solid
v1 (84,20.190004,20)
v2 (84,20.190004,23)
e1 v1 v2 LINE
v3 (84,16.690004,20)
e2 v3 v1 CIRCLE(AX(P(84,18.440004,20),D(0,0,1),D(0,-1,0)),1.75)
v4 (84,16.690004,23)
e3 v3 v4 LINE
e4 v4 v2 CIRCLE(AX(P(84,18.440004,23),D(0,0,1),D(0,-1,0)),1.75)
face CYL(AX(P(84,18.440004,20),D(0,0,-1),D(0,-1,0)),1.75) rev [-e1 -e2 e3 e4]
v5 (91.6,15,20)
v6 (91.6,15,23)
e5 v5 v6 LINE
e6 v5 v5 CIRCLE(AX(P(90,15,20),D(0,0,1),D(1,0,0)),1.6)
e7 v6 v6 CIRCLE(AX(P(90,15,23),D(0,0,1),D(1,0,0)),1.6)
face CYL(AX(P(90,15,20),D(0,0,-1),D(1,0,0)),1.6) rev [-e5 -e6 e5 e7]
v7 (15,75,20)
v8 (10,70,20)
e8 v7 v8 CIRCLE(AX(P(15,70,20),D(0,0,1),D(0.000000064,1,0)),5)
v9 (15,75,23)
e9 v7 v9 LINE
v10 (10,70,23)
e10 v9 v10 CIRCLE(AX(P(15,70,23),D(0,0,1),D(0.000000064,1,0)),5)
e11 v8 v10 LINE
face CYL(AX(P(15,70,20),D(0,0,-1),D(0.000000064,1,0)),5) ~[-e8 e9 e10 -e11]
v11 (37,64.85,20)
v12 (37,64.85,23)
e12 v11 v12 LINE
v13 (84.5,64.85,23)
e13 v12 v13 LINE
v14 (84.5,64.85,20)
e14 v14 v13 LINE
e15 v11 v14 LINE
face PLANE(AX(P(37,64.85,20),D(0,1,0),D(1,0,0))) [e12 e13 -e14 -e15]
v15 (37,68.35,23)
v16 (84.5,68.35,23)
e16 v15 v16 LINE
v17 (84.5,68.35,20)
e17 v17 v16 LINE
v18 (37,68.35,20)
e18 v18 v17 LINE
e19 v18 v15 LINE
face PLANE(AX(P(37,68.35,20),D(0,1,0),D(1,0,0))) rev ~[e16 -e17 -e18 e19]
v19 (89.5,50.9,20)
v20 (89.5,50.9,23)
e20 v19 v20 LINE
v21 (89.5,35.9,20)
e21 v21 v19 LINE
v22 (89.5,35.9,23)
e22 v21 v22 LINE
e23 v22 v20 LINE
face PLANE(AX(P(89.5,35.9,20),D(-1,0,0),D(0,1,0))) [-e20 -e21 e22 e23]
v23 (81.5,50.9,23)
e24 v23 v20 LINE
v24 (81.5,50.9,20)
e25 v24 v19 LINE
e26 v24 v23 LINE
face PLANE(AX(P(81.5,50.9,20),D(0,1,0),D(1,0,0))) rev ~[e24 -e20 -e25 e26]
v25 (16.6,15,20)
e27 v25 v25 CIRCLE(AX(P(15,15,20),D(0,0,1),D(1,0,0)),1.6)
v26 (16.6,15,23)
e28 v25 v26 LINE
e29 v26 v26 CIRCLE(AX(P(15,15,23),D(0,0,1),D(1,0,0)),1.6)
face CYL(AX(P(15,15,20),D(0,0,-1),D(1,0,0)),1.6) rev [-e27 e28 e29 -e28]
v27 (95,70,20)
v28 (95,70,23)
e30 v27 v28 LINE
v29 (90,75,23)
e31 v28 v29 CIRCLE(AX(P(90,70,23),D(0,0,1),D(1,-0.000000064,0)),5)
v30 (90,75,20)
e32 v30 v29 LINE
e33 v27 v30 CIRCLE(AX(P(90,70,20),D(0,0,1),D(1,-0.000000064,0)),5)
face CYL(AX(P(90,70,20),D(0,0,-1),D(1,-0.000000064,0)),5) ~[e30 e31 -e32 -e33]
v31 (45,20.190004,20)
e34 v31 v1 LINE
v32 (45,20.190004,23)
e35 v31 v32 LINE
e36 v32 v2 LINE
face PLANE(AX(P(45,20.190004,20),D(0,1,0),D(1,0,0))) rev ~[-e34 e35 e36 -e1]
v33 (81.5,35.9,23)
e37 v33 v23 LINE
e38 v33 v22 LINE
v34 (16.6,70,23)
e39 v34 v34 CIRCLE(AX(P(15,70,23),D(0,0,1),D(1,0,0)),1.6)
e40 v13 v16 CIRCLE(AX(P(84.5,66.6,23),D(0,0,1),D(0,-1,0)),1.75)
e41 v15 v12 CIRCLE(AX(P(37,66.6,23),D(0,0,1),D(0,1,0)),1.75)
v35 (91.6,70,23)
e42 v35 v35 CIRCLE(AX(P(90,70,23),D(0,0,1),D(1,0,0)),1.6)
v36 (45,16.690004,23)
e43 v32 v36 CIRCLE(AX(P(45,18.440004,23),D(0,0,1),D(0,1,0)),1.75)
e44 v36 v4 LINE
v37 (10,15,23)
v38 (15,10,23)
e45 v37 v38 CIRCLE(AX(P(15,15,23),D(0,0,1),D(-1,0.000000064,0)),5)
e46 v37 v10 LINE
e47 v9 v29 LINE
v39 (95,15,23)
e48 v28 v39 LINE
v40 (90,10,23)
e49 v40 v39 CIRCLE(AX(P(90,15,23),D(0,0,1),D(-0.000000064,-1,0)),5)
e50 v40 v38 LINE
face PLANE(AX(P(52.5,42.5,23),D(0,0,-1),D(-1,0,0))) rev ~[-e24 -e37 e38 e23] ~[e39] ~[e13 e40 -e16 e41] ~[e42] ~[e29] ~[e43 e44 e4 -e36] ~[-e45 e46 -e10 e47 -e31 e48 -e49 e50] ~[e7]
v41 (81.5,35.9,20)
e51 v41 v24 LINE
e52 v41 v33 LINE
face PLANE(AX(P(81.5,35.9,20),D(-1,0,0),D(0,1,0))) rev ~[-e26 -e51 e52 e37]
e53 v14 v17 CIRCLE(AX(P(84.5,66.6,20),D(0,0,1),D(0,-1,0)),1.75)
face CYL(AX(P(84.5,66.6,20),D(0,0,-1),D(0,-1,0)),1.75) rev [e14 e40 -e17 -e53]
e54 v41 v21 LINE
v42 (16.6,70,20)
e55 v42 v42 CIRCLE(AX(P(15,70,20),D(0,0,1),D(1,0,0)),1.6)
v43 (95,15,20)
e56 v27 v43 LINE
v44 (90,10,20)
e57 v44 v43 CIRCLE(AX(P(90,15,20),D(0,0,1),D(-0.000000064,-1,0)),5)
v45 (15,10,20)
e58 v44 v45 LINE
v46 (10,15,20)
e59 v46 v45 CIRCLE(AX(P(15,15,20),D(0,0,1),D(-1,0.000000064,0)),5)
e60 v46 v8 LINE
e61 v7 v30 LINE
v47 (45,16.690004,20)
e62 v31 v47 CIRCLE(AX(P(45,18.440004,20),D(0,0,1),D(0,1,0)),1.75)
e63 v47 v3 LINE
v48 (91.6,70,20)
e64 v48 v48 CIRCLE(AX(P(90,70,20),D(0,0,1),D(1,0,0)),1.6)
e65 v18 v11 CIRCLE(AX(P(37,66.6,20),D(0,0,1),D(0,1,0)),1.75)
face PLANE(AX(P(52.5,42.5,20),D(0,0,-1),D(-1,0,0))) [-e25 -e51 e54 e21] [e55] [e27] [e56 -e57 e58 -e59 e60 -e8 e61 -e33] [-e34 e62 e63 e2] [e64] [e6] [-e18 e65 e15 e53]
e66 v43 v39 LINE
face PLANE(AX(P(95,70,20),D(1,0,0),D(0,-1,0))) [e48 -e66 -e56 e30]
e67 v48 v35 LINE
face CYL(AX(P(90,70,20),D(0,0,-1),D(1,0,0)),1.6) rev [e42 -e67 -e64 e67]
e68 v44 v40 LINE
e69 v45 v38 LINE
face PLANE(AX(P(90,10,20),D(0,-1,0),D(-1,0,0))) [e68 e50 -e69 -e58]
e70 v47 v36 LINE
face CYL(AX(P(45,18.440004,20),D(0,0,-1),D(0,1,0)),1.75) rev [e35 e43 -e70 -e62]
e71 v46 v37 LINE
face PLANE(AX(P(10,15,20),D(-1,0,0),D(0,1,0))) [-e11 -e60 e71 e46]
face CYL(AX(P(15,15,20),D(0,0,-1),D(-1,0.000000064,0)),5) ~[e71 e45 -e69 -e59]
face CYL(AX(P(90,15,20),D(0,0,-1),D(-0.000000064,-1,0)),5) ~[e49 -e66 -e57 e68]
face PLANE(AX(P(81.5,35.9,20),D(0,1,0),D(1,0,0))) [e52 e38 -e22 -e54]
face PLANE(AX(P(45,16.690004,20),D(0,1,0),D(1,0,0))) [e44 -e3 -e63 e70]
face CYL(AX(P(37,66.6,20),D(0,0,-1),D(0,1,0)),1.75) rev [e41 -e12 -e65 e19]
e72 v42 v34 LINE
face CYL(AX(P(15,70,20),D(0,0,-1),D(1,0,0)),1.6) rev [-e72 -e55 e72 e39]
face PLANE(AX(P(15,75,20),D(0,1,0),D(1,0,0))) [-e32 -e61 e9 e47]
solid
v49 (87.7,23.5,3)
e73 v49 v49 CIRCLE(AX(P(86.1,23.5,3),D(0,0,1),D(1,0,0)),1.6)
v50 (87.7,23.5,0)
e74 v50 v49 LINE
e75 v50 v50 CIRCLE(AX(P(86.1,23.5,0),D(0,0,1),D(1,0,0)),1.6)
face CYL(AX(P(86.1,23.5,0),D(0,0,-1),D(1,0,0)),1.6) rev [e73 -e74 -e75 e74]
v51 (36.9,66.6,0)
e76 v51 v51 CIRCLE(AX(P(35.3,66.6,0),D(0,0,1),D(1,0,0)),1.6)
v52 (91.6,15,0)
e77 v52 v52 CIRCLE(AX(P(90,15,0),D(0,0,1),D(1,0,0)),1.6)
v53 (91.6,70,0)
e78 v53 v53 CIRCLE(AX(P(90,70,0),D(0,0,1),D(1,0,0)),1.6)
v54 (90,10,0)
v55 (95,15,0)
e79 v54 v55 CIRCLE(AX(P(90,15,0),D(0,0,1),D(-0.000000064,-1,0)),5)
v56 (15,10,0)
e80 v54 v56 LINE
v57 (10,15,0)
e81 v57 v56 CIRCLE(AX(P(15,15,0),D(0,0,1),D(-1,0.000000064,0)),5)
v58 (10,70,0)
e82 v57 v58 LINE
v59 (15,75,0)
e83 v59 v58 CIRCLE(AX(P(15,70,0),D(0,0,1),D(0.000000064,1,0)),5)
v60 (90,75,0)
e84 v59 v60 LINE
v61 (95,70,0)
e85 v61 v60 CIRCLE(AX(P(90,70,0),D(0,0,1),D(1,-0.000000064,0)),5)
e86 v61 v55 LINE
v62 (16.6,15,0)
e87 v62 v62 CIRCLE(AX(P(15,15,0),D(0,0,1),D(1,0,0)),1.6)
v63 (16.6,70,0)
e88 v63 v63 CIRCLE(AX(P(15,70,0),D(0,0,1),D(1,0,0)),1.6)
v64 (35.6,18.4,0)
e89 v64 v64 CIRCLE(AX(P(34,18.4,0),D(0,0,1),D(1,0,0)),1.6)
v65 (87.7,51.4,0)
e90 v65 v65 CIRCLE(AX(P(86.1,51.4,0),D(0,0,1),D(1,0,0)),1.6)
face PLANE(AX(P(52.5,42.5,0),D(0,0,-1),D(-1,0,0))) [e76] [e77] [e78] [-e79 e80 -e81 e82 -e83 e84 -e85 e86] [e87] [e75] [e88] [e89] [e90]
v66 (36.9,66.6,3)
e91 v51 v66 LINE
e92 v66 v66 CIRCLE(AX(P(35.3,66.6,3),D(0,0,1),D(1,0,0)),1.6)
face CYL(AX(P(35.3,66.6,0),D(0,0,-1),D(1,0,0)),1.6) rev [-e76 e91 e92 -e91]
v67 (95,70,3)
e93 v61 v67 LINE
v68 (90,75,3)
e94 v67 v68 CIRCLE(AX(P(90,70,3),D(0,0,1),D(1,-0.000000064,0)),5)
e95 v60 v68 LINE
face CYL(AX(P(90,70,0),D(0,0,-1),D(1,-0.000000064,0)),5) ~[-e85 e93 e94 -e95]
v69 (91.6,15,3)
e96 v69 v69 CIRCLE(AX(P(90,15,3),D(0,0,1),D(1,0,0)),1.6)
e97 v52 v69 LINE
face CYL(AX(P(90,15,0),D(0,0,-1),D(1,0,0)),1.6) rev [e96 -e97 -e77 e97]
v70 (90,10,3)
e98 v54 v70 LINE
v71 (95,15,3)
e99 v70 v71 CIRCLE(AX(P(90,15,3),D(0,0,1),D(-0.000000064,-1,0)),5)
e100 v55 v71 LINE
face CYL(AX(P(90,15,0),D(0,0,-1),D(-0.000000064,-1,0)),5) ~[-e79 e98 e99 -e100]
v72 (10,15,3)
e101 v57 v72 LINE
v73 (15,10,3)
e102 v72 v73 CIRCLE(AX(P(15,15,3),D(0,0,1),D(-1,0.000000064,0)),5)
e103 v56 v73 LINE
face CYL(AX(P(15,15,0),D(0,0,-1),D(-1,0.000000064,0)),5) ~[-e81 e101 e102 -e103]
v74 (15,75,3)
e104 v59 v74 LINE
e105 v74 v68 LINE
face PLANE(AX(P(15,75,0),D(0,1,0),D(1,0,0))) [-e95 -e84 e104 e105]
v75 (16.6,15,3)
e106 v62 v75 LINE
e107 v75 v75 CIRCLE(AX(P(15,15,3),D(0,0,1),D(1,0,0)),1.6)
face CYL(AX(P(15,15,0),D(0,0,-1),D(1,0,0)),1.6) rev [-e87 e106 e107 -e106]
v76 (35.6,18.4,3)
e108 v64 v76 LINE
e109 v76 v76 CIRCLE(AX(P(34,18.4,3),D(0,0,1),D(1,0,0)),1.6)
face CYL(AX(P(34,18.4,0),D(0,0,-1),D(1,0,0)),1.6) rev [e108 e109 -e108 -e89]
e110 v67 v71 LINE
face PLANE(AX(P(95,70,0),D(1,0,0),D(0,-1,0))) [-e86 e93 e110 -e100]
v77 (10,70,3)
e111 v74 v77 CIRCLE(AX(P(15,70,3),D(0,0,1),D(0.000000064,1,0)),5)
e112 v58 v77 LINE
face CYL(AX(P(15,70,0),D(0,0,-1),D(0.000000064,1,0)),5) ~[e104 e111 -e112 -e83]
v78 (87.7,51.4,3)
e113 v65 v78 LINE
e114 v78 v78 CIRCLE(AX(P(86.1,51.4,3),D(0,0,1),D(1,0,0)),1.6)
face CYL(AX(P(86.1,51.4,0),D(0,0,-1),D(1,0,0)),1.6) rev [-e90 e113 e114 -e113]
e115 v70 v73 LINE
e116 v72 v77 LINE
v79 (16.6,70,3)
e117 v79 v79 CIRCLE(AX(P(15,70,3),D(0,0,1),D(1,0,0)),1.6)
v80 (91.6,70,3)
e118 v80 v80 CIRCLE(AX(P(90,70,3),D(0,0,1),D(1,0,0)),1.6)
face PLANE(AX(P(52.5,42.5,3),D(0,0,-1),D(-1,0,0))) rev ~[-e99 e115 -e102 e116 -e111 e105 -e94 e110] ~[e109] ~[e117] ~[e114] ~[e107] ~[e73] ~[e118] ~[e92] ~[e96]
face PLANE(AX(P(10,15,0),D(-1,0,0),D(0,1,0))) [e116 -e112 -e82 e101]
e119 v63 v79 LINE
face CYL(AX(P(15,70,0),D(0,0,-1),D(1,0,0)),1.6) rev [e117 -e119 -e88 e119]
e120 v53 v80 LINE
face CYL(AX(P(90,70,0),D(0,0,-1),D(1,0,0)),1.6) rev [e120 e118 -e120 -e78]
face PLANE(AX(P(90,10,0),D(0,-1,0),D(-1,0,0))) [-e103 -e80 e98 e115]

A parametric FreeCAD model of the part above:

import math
import FreeCAD as App
import Part
import Sketcher
from FreeCAD import Vector
Q = App.Units.Quantity


def add_polygon(sketch, points):
    """Adds a closed chain of lines whose ends are joined by coincident constraints."""
    first, n = sketch.GeometryCount, len(points)
    for a, b in zip(points, points[1:] + points[:1]):
        sketch.addGeometry(Part.LineSegment(App.Vector(*a, 0), App.Vector(*b, 0)), False)
    for i in range(n):
        sketch.addConstraint(Sketcher.Constraint("Coincident", first + i, 2, first + (i + 1) % n, 1))

doc = App.newDocument("Part")
params = doc.addObject("Spreadsheet::Sheet", "Params")
for row, (alias, value) in enumerate([
    ("sketch1_radius", "5 mm"),
    ("sketch1_diameter", "3.2 mm"),
    ("sketch1_width", "75 mm"),
    ("sketch1_height", "55 mm"),
    ("pad1_length", "3 mm"),
    ("sketch2_radius", "5 mm"),
    ("sketch2_diameter", "3.2 mm"),
    ("sketch2_width", "75 mm"),
    ("sketch2_width2", "39 mm"),
    ("sketch2_width3", "8 mm"),
    ("pad2_length", "3 mm"),
], start=1):
    params.set(f"A{row}", alias)
    params.set(f"B{row}", "=" + value)
    params.setAlias(f"B{row}", alias)

body = doc.addObject("PartDesign::Body", "Body")

sketch1 = body.newObject("Sketcher::SketchObject", "Sketch")
sketch1.AttachmentSupport = (doc.getObject("XY_Plane"), [""])
sketch1.MapMode = "FlatFace"
sketch1.addGeometry(Part.LineSegment(Vector(90, 75, 0), Vector(15, 75, 0)), False)
sketch1.addGeometry(Part.ArcOfCircle(Part.Circle(Vector(15, 70, 0), Vector(0, 0, 1), 5), math.radians(90), math.radians(180)), False)
sketch1.addGeometry(Part.LineSegment(Vector(10, 70, 0), Vector(10, 15, 0)), False)
sketch1.addGeometry(Part.ArcOfCircle(Part.Circle(Vector(15, 15, 0), Vector(0, 0, 1), 5), math.radians(180), math.radians(270)), False)
sketch1.addGeometry(Part.LineSegment(Vector(15, 10, 0), Vector(90, 10, 0)), False)
sketch1.addGeometry(Part.ArcOfCircle(Part.Circle(Vector(90, 15, 0), Vector(0, 0, 1), 5), math.radians(-90), math.radians(0)), False)
sketch1.addGeometry(Part.LineSegment(Vector(95, 15, 0), Vector(95, 70, 0)), False)
sketch1.addGeometry(Part.ArcOfCircle(Part.Circle(Vector(90, 70, 0), Vector(0, 0, 1), 5), math.radians(0), math.radians(90)), False)
sketch1.addGeometry(Part.Circle(Vector(90, 15, 0), Vector(0, 0, 1), 1.6), False)
sketch1.addGeometry(Part.Circle(Vector(86.1, 23.5, 0), Vector(0, 0, 1), 1.6), False)
sketch1.addGeometry(Part.Circle(Vector(34, 18.4, 0), Vector(0, 0, 1), 1.6), False)
sketch1.addGeometry(Part.Circle(Vector(15, 15, 0), Vector(0, 0, 1), 1.6), False)
sketch1.addGeometry(Part.Circle(Vector(86.1, 51.4, 0), Vector(0, 0, 1), 1.6), False)
sketch1.addGeometry(Part.Circle(Vector(90, 70, 0), Vector(0, 0, 1), 1.6), False)
sketch1.addGeometry(Part.Circle(Vector(35.3, 66.6, 0), Vector(0, 0, 1), 1.6), False)
sketch1.addGeometry(Part.Circle(Vector(15, 70, 0), Vector(0, 0, 1), 1.6), False)
sketch1.addConstraint(Sketcher.Constraint("Tangent", 0, 2, 1, 1))
sketch1.addConstraint(Sketcher.Constraint("Tangent", 1, 2, 2, 1))
sketch1.addConstraint(Sketcher.Constraint("Tangent", 2, 2, 3, 1))
sketch1.addConstraint(Sketcher.Constraint("Tangent", 3, 2, 4, 1))
sketch1.addConstraint(Sketcher.Constraint("Tangent", 4, 2, 5, 1))
sketch1.addConstraint(Sketcher.Constraint("Tangent", 5, 2, 6, 1))
sketch1.addConstraint(Sketcher.Constraint("Tangent", 6, 2, 7, 1))
sketch1.addConstraint(Sketcher.Constraint("Tangent", 7, 2, 0, 1))
sketch1.addConstraint(Sketcher.Constraint("Horizontal", 0))
sketch1.addConstraint(Sketcher.Constraint("Vertical", 2))
sketch1.addConstraint(Sketcher.Constraint("Horizontal", 4))
sketch1.addConstraint(Sketcher.Constraint("Vertical", 6))
sketch1.addConstraint(Sketcher.Constraint("Coincident", 8, 3, 5, 3))
sketch1.addConstraint(Sketcher.Constraint("Coincident", 11, 3, 3, 3))
sketch1.addConstraint(Sketcher.Constraint("Coincident", 13, 3, 7, 3))
sketch1.addConstraint(Sketcher.Constraint("Coincident", 15, 3, 1, 3))
sketch1.addConstraint(Sketcher.Constraint("Equal", 1, 3))
sketch1.addConstraint(Sketcher.Constraint("Equal", 3, 5))
sketch1.addConstraint(Sketcher.Constraint("Equal", 5, 7))
sketch1.addConstraint(Sketcher.Constraint("Equal", 8, 9))
sketch1.addConstraint(Sketcher.Constraint("Equal", 9, 10))
sketch1.addConstraint(Sketcher.Constraint("Equal", 10, 11))
sketch1.addConstraint(Sketcher.Constraint("Equal", 11, 12))
sketch1.addConstraint(Sketcher.Constraint("Equal", 12, 13))
sketch1.addConstraint(Sketcher.Constraint("Equal", 13, 14))
sketch1.addConstraint(Sketcher.Constraint("Equal", 14, 15))
sketch1.addConstraint(Sketcher.Constraint("Vertical", 9, 3, 12, 3))
sketch1.addConstraint(Sketcher.Constraint("Radius", 1, Q("5 mm")))
sketch1.addConstraint(Sketcher.Constraint("Diameter", 8, Q("3.2 mm")))
sketch1.addConstraint(Sketcher.Constraint("DistanceX", 0, 2, 0, 1, Q("75 mm")))
sketch1.addConstraint(Sketcher.Constraint("DistanceY", 2, 2, 2, 1, Q("55 mm")))
sketch1.addConstraint(Sketcher.Constraint("DistanceX", -1, 1, 1, 3, Q("15 mm")))
sketch1.addConstraint(Sketcher.Constraint("DistanceY", -1, 1, 1, 3, Q("70 mm")))
sketch1.addConstraint(Sketcher.Constraint("DistanceX", -1, 1, 10, 3, Q("34 mm")))
sketch1.addConstraint(Sketcher.Constraint("DistanceY", 10, 3, 12, 3, Q("33 mm")))
sketch1.addConstraint(Sketcher.Constraint("DistanceX", -1, 1, 9, 3, Q("86.1 mm")))
sketch1.addConstraint(Sketcher.Constraint("DistanceY", -1, 1, 9, 3, Q("23.5 mm")))
sketch1.addConstraint(Sketcher.Constraint("DistanceY", -1, 1, 10, 3, Q("18.4 mm")))
sketch1.addConstraint(Sketcher.Constraint("DistanceX", -1, 1, 14, 3, Q("35.3 mm")))
sketch1.addConstraint(Sketcher.Constraint("DistanceY", -1, 1, 14, 3, Q("66.6 mm")))
sketch1.setExpression("Constraints[27]", "Params.sketch1_radius")
sketch1.setExpression("Constraints[28]", "Params.sketch1_diameter")
sketch1.setExpression("Constraints[29]", "Params.sketch1_width")
sketch1.setExpression("Constraints[30]", "Params.sketch1_height")
pad1 = body.newObject("PartDesign::Pad", "Pad")
pad1.Profile = sketch1
pad1.setExpression("Length", "Params.pad1_length")
body2 = doc.addObject("PartDesign::Body", "Body001")

sketch2 = body2.newObject("Sketcher::SketchObject", "Sketch001")
sketch2.AttachmentSupport = (doc.getObject("XY_Plane001"), [""])
sketch2.MapMode = "FlatFace"
sketch2.AttachmentOffset = App.Placement(Vector(0, 0, 20), App.Rotation())
sketch2.addGeometry(Part.LineSegment(Vector(90, 75, 0), Vector(15, 75, 0)), False)
sketch2.addGeometry(Part.ArcOfCircle(Part.Circle(Vector(15, 70, 0), Vector(0, 0, 1), 5), math.radians(90), math.radians(180)), False)
sketch2.addGeometry(Part.LineSegment(Vector(10, 70, 0), Vector(10, 15, 0)), False)
sketch2.addGeometry(Part.ArcOfCircle(Part.Circle(Vector(15, 15, 0), Vector(0, 0, 1), 5), math.radians(180), math.radians(270)), False)
sketch2.addGeometry(Part.LineSegment(Vector(15, 10, 0), Vector(90, 10, 0)), False)
sketch2.addGeometry(Part.ArcOfCircle(Part.Circle(Vector(90, 15, 0), Vector(0, 0, 1), 5), math.radians(-90), math.radians(0)), False)
sketch2.addGeometry(Part.LineSegment(Vector(95, 15, 0), Vector(95, 70, 0)), False)
sketch2.addGeometry(Part.ArcOfCircle(Part.Circle(Vector(90, 70, 0), Vector(0, 0, 1), 5), math.radians(0), math.radians(90)), False)
sketch2.addGeometry(Part.Circle(Vector(90, 15, 0), Vector(0, 0, 1), 1.6), False)
sketch2.addGeometry(Part.LineSegment(Vector(45, 20.2, 0), Vector(84, 20.2, 0)), False)
sketch2.addGeometry(Part.ArcOfCircle(Part.Circle(Vector(84, 18.4, 0), Vector(0, 0, 1), 1.8), math.radians(-90), math.radians(90)), False)
sketch2.addGeometry(Part.LineSegment(Vector(84, 16.7, 0), Vector(45, 16.7, 0)), False)
sketch2.addGeometry(Part.ArcOfCircle(Part.Circle(Vector(45, 18.4, 0), Vector(0, 0, 1), 1.8), math.radians(90), math.radians(270)), False)
sketch2.addGeometry(Part.Circle(Vector(15, 15, 0), Vector(0, 0, 1), 1.6), False)
add_polygon(sketch2, [(81.5, 35.9), (81.5, 50.9), (89.5, 50.9), (89.5, 35.9)])
sketch2.addGeometry(Part.Circle(Vector(90, 70, 0), Vector(0, 0, 1), 1.6), False)
sketch2.addGeometry(Part.LineSegment(Vector(37, 68.3, 0), Vector(84.5, 68.3, 0)), False)
sketch2.addGeometry(Part.ArcOfCircle(Part.Circle(Vector(84.5, 66.6, 0), Vector(0, 0, 1), 1.8), math.radians(-90), math.radians(90)), False)
sketch2.addGeometry(Part.LineSegment(Vector(84.5, 64.8, 0), Vector(37, 64.8, 0)), False)
sketch2.addGeometry(Part.ArcOfCircle(Part.Circle(Vector(37, 66.6, 0), Vector(0, 0, 1), 1.8), math.radians(90), math.radians(270)), False)
sketch2.addGeometry(Part.Circle(Vector(15, 70, 0), Vector(0, 0, 1), 1.6), False)
sketch2.addConstraint(Sketcher.Constraint("Tangent", 0, 2, 1, 1))
sketch2.addConstraint(Sketcher.Constraint("Tangent", 1, 2, 2, 1))
sketch2.addConstraint(Sketcher.Constraint("Tangent", 2, 2, 3, 1))
sketch2.addConstraint(Sketcher.Constraint("Tangent", 3, 2, 4, 1))
sketch2.addConstraint(Sketcher.Constraint("Tangent", 4, 2, 5, 1))
sketch2.addConstraint(Sketcher.Constraint("Tangent", 5, 2, 6, 1))
sketch2.addConstraint(Sketcher.Constraint("Tangent", 6, 2, 7, 1))
sketch2.addConstraint(Sketcher.Constraint("Tangent", 7, 2, 0, 1))
sketch2.addConstraint(Sketcher.Constraint("Tangent", 9, 2, 10, 2))
sketch2.addConstraint(Sketcher.Constraint("Tangent", 10, 1, 11, 1))
sketch2.addConstraint(Sketcher.Constraint("Tangent", 11, 2, 12, 2))
sketch2.addConstraint(Sketcher.Constraint("Tangent", 12, 1, 9, 1))
sketch2.addConstraint(Sketcher.Constraint("Tangent", 19, 2, 20, 2))
sketch2.addConstraint(Sketcher.Constraint("Tangent", 20, 1, 21, 1))
sketch2.addConstraint(Sketcher.Constraint("Tangent", 21, 2, 22, 2))
sketch2.addConstraint(Sketcher.Constraint("Tangent", 22, 1, 19, 1))
sketch2.addConstraint(Sketcher.Constraint("Horizontal", 0))
sketch2.addConstraint(Sketcher.Constraint("Vertical", 2))
sketch2.addConstraint(Sketcher.Constraint("Horizontal", 4))
sketch2.addConstraint(Sketcher.Constraint("Vertical", 6))
sketch2.addConstraint(Sketcher.Constraint("Horizontal", 9))
sketch2.addConstraint(Sketcher.Constraint("Horizontal", 11))
sketch2.addConstraint(Sketcher.Constraint("Vertical", 14))
sketch2.addConstraint(Sketcher.Constraint("Horizontal", 15))
sketch2.addConstraint(Sketcher.Constraint("Vertical", 16))
sketch2.addConstraint(Sketcher.Constraint("Horizontal", 17))
sketch2.addConstraint(Sketcher.Constraint("Horizontal", 19))
sketch2.addConstraint(Sketcher.Constraint("Horizontal", 21))
sketch2.addConstraint(Sketcher.Constraint("Coincident", 8, 3, 5, 3))
sketch2.addConstraint(Sketcher.Constraint("Coincident", 13, 3, 3, 3))
sketch2.addConstraint(Sketcher.Constraint("Coincident", 18, 3, 7, 3))
sketch2.addConstraint(Sketcher.Constraint("Coincident", 23, 3, 1, 3))
sketch2.addConstraint(Sketcher.Constraint("Equal", 1, 3))
sketch2.addConstraint(Sketcher.Constraint("Equal", 3, 5))
sketch2.addConstraint(Sketcher.Constraint("Equal", 5, 7))
sketch2.addConstraint(Sketcher.Constraint("Equal", 8, 13))
sketch2.addConstraint(Sketcher.Constraint("Equal", 13, 18))
sketch2.addConstraint(Sketcher.Constraint("Equal", 12, 20))
sketch2.addConstraint(Sketcher.Constraint("Equal", 18, 23))
sketch2.addConstraint(Sketcher.Constraint("Radius", 1, Q("5 mm")))
sketch2.addConstraint(Sketcher.Constraint("Diameter", 8, Q("3.2 mm")))
sketch2.addConstraint(Sketcher.Constraint("DistanceX", 0, 2, 0, 1, Q("75 mm")))
sketch2.addConstraint(Sketcher.Constraint("DistanceX", 9, 1, 9, 2, Q("39 mm")))
sketch2.addConstraint(Sketcher.Constraint("DistanceX", 15, 1, 15, 2, Q("8 mm")))
sketch2.addConstraint(Sketcher.Constraint("DistanceY", 2, 2, 2, 1, Q("55 mm")))
sketch2.addConstraint(Sketcher.Constraint("DistanceY", 14, 1, 14, 2, Q("15 mm")))
sketch2.addConstraint(Sketcher.Constraint("Radius", 10, Q("1.75 mm")))
sketch2.addConstraint(Sketcher.Constraint("DistanceX", 19, 1, 19, 2, Q("47.5 mm")))
sketch2.addConstraint(Sketcher.Constraint("DistanceX", -1, 1, 1, 3, Q("15 mm")))
sketch2.addConstraint(Sketcher.Constraint("DistanceY", -1, 1, 1, 3, Q("70 mm")))
sketch2.addConstraint(Sketcher.Constraint("DistanceX", -1, 1, 10, 3, Q("84 mm")))
sketch2.addConstraint(Sketcher.Constraint("DistanceX", -1, 1, 22, 3, Q("37 mm")))
sketch2.addConstraint(Sketcher.Constraint("DistanceX", 14, 2, 20, 3, Q("3 mm")))
sketch2.addConstraint(Sketcher.Constraint("DistanceY", -1, 1, 20, 3, Q("66.6 mm")))
sketch2.addConstraint(Sketcher.Constraint("DistanceY", -1, 1, 14, 2, Q("50.9 mm")))
sketch2.addConstraint(Sketcher.Constraint("DistanceY", -1, 1, 10, 3, Q("18.440004 mm")))
sketch2.setExpression("Constraints[43]", "Params.sketch2_radius")
sketch2.setExpression("Constraints[44]", "Params.sketch2_diameter")
sketch2.setExpression("Constraints[45]", "Params.sketch2_width")
sketch2.setExpression("Constraints[46]", "Params.sketch2_width2")
sketch2.setExpression("Constraints[47]", "Params.sketch2_width3")
pad2 = body2.newObject("PartDesign::Pad", "Pad001")
pad2.Profile = sketch2
pad2.setExpression("Length", "Params.pad2_length")

doc.recompute()
